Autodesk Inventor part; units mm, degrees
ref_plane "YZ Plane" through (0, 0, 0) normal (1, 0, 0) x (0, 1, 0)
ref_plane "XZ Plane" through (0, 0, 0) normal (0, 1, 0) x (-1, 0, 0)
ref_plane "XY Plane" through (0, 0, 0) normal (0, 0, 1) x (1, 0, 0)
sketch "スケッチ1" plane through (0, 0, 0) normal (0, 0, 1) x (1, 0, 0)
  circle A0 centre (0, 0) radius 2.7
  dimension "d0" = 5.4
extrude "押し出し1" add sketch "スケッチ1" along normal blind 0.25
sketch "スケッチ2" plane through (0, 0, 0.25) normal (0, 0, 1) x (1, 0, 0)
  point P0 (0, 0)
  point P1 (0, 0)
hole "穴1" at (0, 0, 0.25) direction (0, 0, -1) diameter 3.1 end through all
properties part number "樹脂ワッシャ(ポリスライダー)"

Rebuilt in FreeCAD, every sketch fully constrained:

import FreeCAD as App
import Part
import Sketcher
from FreeCAD import Vector
Q = App.Units.Quantity

doc = App.newDocument("Part")
body = doc.addObject("PartDesign::Body", "Body")

sketch1 = body.newObject("Sketcher::SketchObject", "Sketch")
sketch1.AttachmentSupport = (doc.getObject("XY_Plane"), [""])
sketch1.MapMode = "FlatFace"
sketch1.addGeometry(Part.Circle(Vector(0, 0, 0), Vector(0, 0, 1), 2.7), False)
sketch1.addConstraint([
    Sketcher.Constraint("Coincident", 0, 3, -1, 1),
    Sketcher.Constraint("Diameter", 0, Q("5.4 mm")),
])
pad1 = body.newObject("PartDesign::Pad", "Pad")
pad1.Profile = sketch1
pad1.Length = 0.25

sketch2 = body.newObject("Sketcher::SketchObject", "Sketch001")
sketch2.AttachmentSupport = (doc.getObject("XY_Plane"), [""])
sketch2.MapMode = "FlatFace"
sketch2.AttachmentOffset = App.Placement(Vector(0, 0, 0.25), App.Rotation())
sketch2.addGeometry(Part.Circle(Vector(0, 0, 0), Vector(0, 0, 1), 1.6), False)
sketch2.addConstraint([
    Sketcher.Constraint("Coincident", 0, 3, -1, 1),
    Sketcher.Constraint("Diameter", 0, Q("3.1 mm")),
])
doc.recompute()
hole = body.newObject("PartDesign::Hole", "Hole")
hole.Profile = sketch2
hole.ThreadType = "None"
hole.Diameter = 3.1
hole.DepthType = "ThroughAll"

doc.recompute()
